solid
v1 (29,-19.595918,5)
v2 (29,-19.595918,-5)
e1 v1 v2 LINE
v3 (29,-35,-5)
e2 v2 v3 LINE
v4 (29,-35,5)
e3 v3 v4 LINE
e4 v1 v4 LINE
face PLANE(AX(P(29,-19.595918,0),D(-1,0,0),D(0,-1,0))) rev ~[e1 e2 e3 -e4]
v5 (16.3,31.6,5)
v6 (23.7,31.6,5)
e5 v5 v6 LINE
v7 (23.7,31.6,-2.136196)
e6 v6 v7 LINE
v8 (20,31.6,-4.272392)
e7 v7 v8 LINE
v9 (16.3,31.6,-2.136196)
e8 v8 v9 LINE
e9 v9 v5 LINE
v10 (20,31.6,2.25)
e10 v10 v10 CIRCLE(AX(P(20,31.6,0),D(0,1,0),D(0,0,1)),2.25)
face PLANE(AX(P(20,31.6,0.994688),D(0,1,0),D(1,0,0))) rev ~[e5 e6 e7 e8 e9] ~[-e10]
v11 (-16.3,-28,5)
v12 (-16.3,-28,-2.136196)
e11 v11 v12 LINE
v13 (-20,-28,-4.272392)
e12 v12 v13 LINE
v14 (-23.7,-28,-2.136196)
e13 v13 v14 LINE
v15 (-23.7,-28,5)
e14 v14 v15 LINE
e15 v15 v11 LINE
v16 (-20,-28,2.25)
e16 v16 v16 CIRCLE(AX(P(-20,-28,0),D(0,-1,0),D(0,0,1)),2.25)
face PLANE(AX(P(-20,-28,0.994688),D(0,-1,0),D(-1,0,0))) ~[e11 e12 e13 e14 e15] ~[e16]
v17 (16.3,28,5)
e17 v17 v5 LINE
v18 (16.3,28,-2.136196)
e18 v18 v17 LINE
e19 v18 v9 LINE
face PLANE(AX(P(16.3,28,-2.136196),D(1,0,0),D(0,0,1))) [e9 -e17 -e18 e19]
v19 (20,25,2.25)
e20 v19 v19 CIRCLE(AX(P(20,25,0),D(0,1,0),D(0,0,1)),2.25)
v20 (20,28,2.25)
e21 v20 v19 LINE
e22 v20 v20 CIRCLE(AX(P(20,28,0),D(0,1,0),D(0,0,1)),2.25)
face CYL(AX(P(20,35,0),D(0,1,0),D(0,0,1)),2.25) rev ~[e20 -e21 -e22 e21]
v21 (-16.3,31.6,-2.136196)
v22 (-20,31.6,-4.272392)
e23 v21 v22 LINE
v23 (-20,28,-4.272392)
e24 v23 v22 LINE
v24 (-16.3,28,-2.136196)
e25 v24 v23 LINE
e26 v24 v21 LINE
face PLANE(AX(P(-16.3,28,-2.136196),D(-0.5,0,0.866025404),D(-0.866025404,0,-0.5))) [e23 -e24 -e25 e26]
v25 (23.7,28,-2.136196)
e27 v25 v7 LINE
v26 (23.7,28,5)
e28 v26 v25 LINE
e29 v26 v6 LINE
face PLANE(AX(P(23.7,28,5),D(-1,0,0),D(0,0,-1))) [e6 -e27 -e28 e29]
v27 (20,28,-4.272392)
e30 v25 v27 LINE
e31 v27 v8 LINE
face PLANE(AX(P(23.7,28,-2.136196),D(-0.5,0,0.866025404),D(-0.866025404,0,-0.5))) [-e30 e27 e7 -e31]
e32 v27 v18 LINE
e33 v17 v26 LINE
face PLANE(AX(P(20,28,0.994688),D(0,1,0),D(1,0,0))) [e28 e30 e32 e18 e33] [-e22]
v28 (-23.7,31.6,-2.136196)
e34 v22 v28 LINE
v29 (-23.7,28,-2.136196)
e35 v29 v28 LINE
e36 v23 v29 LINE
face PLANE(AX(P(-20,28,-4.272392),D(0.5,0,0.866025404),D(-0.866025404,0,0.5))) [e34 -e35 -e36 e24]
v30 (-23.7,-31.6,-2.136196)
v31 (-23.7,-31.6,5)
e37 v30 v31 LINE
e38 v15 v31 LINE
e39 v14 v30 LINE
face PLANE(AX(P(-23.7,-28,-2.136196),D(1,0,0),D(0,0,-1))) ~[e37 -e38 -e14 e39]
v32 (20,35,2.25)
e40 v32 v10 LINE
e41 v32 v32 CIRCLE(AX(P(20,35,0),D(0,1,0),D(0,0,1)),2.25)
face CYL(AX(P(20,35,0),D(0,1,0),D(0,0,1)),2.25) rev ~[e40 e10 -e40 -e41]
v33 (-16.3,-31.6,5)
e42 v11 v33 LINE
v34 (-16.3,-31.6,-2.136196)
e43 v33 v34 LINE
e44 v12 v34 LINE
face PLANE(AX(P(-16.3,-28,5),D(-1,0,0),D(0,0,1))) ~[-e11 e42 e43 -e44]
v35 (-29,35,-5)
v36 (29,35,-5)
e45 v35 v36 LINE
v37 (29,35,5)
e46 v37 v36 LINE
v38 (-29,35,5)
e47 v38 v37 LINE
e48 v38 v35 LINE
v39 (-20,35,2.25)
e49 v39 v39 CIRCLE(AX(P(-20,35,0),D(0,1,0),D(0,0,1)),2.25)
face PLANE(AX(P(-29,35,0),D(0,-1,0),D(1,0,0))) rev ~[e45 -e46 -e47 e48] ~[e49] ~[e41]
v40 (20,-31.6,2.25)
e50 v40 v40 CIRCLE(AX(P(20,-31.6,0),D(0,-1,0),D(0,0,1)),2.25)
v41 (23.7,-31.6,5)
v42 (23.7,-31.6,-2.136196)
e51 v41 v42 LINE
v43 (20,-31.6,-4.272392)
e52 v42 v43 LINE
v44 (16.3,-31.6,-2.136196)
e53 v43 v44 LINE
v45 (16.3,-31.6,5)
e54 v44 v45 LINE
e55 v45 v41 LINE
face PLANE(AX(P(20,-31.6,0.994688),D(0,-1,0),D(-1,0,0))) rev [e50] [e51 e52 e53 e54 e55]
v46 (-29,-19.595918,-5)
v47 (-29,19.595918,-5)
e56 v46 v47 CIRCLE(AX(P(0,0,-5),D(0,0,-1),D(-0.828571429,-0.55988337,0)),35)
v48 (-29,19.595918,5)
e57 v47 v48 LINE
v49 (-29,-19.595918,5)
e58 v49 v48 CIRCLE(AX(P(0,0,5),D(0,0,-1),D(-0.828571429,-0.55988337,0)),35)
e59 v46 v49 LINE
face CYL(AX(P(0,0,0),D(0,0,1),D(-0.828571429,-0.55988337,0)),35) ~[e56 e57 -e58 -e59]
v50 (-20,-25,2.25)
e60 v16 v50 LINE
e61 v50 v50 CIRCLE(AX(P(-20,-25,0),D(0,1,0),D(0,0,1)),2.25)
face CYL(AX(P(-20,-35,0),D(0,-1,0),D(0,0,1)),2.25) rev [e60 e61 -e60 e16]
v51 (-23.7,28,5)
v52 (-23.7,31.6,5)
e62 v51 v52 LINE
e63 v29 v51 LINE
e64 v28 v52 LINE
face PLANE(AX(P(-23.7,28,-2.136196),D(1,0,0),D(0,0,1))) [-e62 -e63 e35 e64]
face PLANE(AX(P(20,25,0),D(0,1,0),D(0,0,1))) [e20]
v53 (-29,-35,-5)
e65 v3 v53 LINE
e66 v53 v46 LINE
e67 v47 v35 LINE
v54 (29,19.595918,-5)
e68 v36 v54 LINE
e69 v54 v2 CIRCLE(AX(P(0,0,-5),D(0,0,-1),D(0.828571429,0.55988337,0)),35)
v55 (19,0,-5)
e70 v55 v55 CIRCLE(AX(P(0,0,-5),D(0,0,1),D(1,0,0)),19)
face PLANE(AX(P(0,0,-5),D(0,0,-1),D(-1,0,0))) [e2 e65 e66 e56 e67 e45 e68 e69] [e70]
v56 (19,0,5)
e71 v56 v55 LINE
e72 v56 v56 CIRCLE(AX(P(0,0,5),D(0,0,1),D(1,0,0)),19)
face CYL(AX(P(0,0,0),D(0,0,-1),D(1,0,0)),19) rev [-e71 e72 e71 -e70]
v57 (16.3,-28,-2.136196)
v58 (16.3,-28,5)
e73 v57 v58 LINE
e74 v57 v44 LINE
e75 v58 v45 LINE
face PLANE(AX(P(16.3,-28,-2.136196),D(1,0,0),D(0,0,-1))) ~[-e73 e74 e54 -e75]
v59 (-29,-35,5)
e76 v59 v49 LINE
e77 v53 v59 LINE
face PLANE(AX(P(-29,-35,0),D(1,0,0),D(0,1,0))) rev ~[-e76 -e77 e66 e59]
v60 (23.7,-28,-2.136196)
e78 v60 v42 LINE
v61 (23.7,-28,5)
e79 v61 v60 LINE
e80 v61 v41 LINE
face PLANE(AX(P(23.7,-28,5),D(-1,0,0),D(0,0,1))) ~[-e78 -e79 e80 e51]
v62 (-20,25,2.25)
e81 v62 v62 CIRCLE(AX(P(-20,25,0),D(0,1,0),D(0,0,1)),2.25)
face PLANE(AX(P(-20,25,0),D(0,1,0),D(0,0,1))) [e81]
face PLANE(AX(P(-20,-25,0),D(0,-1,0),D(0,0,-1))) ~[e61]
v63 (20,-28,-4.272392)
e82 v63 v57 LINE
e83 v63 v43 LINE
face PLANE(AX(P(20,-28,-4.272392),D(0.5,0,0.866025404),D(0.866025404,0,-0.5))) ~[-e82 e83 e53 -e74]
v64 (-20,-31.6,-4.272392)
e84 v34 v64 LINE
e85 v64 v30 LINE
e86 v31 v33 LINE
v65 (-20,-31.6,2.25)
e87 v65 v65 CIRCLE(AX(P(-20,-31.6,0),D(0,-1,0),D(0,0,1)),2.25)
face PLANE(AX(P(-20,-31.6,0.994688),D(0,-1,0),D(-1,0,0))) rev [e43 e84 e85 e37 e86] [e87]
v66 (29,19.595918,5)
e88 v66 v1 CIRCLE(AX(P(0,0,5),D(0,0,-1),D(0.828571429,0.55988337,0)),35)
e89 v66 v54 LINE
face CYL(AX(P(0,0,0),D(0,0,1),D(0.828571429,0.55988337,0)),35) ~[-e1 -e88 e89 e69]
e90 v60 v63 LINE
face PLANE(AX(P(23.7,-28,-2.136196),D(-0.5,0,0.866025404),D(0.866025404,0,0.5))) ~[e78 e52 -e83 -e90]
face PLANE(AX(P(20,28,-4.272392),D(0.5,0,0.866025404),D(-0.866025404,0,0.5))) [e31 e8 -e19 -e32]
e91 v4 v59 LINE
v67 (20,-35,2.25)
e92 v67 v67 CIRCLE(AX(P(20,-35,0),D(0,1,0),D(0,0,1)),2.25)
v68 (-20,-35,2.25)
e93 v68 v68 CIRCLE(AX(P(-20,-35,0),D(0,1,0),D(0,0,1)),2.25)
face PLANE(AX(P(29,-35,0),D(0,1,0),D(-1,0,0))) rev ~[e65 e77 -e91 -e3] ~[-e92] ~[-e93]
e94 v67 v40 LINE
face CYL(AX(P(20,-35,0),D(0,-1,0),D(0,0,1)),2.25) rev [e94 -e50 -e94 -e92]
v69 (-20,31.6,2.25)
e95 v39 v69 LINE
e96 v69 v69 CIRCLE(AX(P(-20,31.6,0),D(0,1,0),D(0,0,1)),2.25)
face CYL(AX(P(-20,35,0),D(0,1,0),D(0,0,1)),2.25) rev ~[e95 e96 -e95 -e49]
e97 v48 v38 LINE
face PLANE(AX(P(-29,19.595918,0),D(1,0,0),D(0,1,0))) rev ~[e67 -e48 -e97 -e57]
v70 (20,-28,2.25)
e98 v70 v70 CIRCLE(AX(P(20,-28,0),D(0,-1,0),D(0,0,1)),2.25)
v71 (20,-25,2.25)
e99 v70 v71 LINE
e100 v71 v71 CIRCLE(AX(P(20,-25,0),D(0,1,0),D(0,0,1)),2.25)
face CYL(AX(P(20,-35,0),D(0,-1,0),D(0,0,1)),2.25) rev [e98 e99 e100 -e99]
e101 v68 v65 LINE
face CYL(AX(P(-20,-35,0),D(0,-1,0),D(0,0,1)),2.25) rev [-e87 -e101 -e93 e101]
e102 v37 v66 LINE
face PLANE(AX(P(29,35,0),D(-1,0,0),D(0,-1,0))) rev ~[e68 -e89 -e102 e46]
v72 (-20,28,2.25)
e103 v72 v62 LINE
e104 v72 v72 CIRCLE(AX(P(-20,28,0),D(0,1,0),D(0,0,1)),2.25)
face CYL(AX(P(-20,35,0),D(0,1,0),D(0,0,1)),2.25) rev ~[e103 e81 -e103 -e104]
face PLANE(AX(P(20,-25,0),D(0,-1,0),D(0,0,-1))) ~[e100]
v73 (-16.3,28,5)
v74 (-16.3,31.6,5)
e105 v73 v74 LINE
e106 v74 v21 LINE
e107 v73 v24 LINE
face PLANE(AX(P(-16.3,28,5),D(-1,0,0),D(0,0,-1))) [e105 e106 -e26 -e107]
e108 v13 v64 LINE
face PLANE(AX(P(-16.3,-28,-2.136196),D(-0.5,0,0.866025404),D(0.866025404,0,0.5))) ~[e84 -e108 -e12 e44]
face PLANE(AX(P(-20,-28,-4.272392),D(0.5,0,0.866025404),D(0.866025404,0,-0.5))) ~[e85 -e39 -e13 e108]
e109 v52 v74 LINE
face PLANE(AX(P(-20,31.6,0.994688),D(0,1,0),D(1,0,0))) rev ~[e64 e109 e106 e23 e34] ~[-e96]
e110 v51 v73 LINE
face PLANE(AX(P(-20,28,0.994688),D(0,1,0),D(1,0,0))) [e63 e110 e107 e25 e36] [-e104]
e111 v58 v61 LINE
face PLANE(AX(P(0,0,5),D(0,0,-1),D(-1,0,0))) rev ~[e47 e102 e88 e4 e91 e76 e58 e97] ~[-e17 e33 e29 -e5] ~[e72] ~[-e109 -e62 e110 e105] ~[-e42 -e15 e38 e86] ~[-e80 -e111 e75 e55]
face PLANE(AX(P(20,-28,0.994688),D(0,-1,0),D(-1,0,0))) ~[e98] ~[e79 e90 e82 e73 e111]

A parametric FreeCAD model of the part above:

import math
import FreeCAD as App
import Part
import Sketcher
from FreeCAD import Vector
Q = App.Units.Quantity

doc = App.newDocument("Part")
body = doc.addObject("PartDesign::Body", "Body")

# Sketch on XY plane
sketch1 = doc.addObject("Sketcher::SketchObject", "Sketch")
body.addObject(sketch1)
sketch1.AttachmentSupport = (doc.XY_Plane, [""])
sketch1.MapMode = "FlatFace"
sketch1.addGeometry(Part.LineSegment(Vector(-29, 35, 0), Vector(-29, 20, 0)), False)
sketch1.addGeometry(Part.ArcOfCircle(Part.Circle(Vector(0, 0, 0), Vector(0, 0, 1), 35), math.radians(146), math.radians(214)), False)
sketch1.addGeometry(Part.LineSegment(Vector(-29, -20, 0), Vector(-29, -35, 0)), False)
sketch1.addGeometry(Part.LineSegment(Vector(-29, -35, 0), Vector(29, -35, 0)), False)
sketch1.addGeometry(Part.LineSegment(Vector(29, -35, 0), Vector(29, -20, 0)), False)
sketch1.addGeometry(Part.ArcOfCircle(Part.Circle(Vector(0, 0, 0), Vector(0, 0, 1), 35), math.radians(-34), math.radians(34)), False)
sketch1.addGeometry(Part.LineSegment(Vector(29, 20, 0), Vector(29, 35, 0)), False)
sketch1.addGeometry(Part.LineSegment(Vector(29, 35, 0), Vector(-29, 35, 0)), False)
sketch1.addGeometry(Part.Circle(Vector(0, 0, 0), Vector(0, 0, 1), 19), False)
sketch1.addConstraint(Sketcher.Constraint("Coincident", 0, 2, 1, 1))
sketch1.addConstraint(Sketcher.Constraint("Coincident", 1, 2, 2, 1))
sketch1.addConstraint(Sketcher.Constraint("Coincident", 2, 2, 3, 1))
sketch1.addConstraint(Sketcher.Constraint("Coincident", 3, 2, 4, 1))
sketch1.addConstraint(Sketcher.Constraint("Coincident", 4, 2, 5, 1))
sketch1.addConstraint(Sketcher.Constraint("Coincident", 5, 2, 6, 1))
sketch1.addConstraint(Sketcher.Constraint("Coincident", 6, 2, 7, 1))
sketch1.addConstraint(Sketcher.Constraint("Coincident", 7, 2, 0, 1))
sketch1.addConstraint(Sketcher.Constraint("Vertical", 0))
sketch1.addConstraint(Sketcher.Constraint("Vertical", 2))
sketch1.addConstraint(Sketcher.Constraint("Horizontal", 3))
sketch1.addConstraint(Sketcher.Constraint("Vertical", 4))
sketch1.addConstraint(Sketcher.Constraint("Vertical", 6))
sketch1.addConstraint(Sketcher.Constraint("Horizontal", 7))
sketch1.addConstraint(Sketcher.Constraint("Coincident", 1, 3, -1, 1))
sketch1.addConstraint(Sketcher.Constraint("Coincident", 5, 3, -1, 1))
sketch1.addConstraint(Sketcher.Constraint("Coincident", 8, 3, -1, 1))
sketch1.addConstraint(Sketcher.Constraint("Equal", 1, 5))
sketch1.addConstraint(Sketcher.Constraint("Symmetric", 2, 2, 6, 2, -1, 1))
sketch1.addConstraint(Sketcher.Constraint("Horizontal", 1, 2, 4, 2))
sketch1.addConstraint(Sketcher.Constraint("Horizontal", 0, 2, 5, 2))
sketch1.addConstraint(Sketcher.Constraint("Diameter", 8, 38.0))
sketch1.addConstraint(Sketcher.Constraint("Radius", 1, 35.0))
sketch1.addConstraint(Sketcher.Constraint("DistanceX", 3, 1, 3, 2, 58.0))
sketch1.addConstraint(Sketcher.Constraint("DistanceY", 2, 2, -1, 1, 35.0))
pad1 = doc.addObject("PartDesign::Pad", "Pad")
body.addObject(pad1)
pad1.Profile = sketch1
pad1.Length = 10
pad1.Midplane = True

# Sketch on XZ plane
sketch2 = doc.addObject("Sketcher::SketchObject", "Sketch001")
body.addObject(sketch2)
sketch2.AttachmentSupport = (doc.XZ_Plane, [""])
sketch2.MapMode = "FlatFace"
sketch2.AttachmentOffset = App.Placement(Vector(0, 0, -28), App.Rotation())
sketch2.addGeometry(Part.LineSegment(Vector(-23.7, 5, 0), Vector(-16.3, 5, 0)), False)
sketch2.addGeometry(Part.LineSegment(Vector(-16.3, 5, 0), Vector(-16.3, -2.1, 0)), False)
sketch2.addGeometry(Part.LineSegment(Vector(-16.3, -2.1, 0), Vector(-20, -4.3, 0)), False)
sketch2.addGeometry(Part.LineSegment(Vector(-20, -4.3, 0), Vector(-23.7, -2.1, 0)), False)
sketch2.addGeometry(Part.LineSegment(Vector(-23.7, -2.1, 0), Vector(-23.7, 5, 0)), False)
sketch2.addGeometry(Part.LineSegment(Vector(16.3, -2.1, 0), Vector(16.3, 5, 0)), False)
sketch2.addGeometry(Part.LineSegment(Vector(16.3, 5, 0), Vector(23.7, 5, 0)), False)
sketch2.addGeometry(Part.LineSegment(Vector(23.7, 5, 0), Vector(23.7, -2.1, 0)), False)
sketch2.addGeometry(Part.LineSegment(Vector(23.7, -2.1, 0), Vector(20, -4.3, 0)), False)
sketch2.addGeometry(Part.LineSegment(Vector(20, -4.3, 0), Vector(16.3, -2.1, 0)), False)
sketch2.addConstraint(Sketcher.Constraint("Coincident", 0, 2, 1, 1))
sketch2.addConstraint(Sketcher.Constraint("Coincident", 1, 2, 2, 1))
sketch2.addConstraint(Sketcher.Constraint("Coincident", 2, 2, 3, 1))
sketch2.addConstraint(Sketcher.Constraint("Coincident", 3, 2, 4, 1))
sketch2.addConstraint(Sketcher.Constraint("Coincident", 4, 2, 0, 1))
sketch2.addConstraint(Sketcher.Constraint("Coincident", 5, 2, 6, 1))
sketch2.addConstraint(Sketcher.Constraint("Coincident", 6, 2, 7, 1))
sketch2.addConstraint(Sketcher.Constraint("Coincident", 7, 2, 8, 1))
sketch2.addConstraint(Sketcher.Constraint("Coincident", 8, 2, 9, 1))
sketch2.addConstraint(Sketcher.Constraint("Coincident", 9, 2, 5, 1))
sketch2.addConstraint(Sketcher.Constraint("Horizontal", 0))
sketch2.addConstraint(Sketcher.Constraint("Vertical", 1))
sketch2.addConstraint(Sketcher.Constraint("Vertical", 4))
sketch2.addConstraint(Sketcher.Constraint("Vertical", 5))
sketch2.addConstraint(Sketcher.Constraint("Horizontal", 6))
sketch2.addConstraint(Sketcher.Constraint("Vertical", 7))
sketch2.addConstraint(Sketcher.Constraint("Symmetric", 0, 2, 5, 2, -2))
sketch2.addConstraint(Sketcher.Constraint("Symmetric", 3, 2, 7, 2, -2))
sketch2.addConstraint(Sketcher.Constraint("Symmetric", 2, 2, 8, 2, -2))
sketch2.addConstraint(Sketcher.Constraint("Parallel", 2, 8))
sketch2.addConstraint(Sketcher.Constraint("Parallel", 3, 9))
sketch2.addConstraint(Sketcher.Constraint("Horizontal", 1, 2, 3, 2))
sketch2.addConstraint(Sketcher.Constraint("Angle", 2, Q("-150 deg")))
sketch2.addConstraint(Sketcher.Constraint("DistanceX", 0, 1, 0, 2, 7.4))
sketch2.addConstraint(Sketcher.Constraint("DistanceY", -1, 1, 0, 2, 5.0))
sketch2.addConstraint(Sketcher.Constraint("DistanceX", 2, 2, -1, 1, 20.0))
sketch2.addConstraint(Sketcher.Constraint("DistanceY", 1, 2, 1, 1, 7.136196))
pocket1 = doc.addObject("PartDesign::Pocket", "Pocket")
body.addObject(pocket1)
pocket1.Profile = sketch2
pocket1.Length = 3.6

# Sketch on XZ plane
sketch3 = doc.addObject("Sketcher::SketchObject", "Sketch002")
body.addObject(sketch3)
sketch3.AttachmentSupport = (doc.XZ_Plane, [""])
sketch3.MapMode = "FlatFace"
sketch3.AttachmentOffset = App.Placement(Vector(0, 0, -35), App.Rotation())
sketch3.addGeometry(Part.Circle(Vector(-20, 0, 0), Vector(0, 0, 1), 2.2), False)
sketch3.addGeometry(Part.Circle(Vector(20, 0, 0), Vector(0, 0, 1), 2.2), False)
sketch3.addConstraint(Sketcher.Constraint("Equal", 0, 1))
sketch3.addConstraint(Sketcher.Constraint("Symmetric", 0, 3, 1, 3, -1, 1))
sketch3.addConstraint(Sketcher.Constraint("PointOnObject", 0, 3, -1))
sketch3.addConstraint(Sketcher.Constraint("Diameter", 0, 4.5))
sketch3.addConstraint(Sketcher.Constraint("DistanceX", 0, 3, -1, 1, 20.0))
pocket2 = doc.addObject("PartDesign::Pocket", "Pocket001")
body.addObject(pocket2)
pocket2.Profile = sketch3
pocket2.Length = 10
pocket2.Reversed = True
doc.recompute()

mirrored = doc.addObject("PartDesign::Mirrored", "Mirrored")
body.addObject(mirrored)
mirrored.Originals = [pocket1, pocket2]
mirrored.MirrorPlane = (doc.XZ_Plane, [""])
body.Tip = mirrored

doc.recompute()
